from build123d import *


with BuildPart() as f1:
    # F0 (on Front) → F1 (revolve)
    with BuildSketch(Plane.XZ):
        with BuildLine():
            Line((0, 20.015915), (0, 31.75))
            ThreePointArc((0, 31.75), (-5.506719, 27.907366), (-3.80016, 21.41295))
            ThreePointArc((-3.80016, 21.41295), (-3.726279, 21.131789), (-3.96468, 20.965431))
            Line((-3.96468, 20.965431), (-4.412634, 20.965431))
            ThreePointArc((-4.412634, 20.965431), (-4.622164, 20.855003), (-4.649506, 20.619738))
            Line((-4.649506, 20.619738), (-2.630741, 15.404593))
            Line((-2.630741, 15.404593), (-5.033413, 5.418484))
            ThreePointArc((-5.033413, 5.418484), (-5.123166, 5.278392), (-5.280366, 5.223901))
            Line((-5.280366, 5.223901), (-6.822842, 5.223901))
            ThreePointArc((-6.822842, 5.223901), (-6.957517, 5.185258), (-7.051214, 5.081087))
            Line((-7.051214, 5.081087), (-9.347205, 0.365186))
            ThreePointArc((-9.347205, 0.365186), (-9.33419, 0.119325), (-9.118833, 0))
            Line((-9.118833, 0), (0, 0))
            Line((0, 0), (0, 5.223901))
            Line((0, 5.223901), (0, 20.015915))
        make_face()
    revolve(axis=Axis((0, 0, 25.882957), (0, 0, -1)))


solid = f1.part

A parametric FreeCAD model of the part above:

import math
import FreeCAD as App
import Part
import Sketcher
from FreeCAD import Vector
Q = App.Units.Quantity

doc = App.newDocument("Part")
body = doc.addObject("PartDesign::Body", "Body")

# Sketch on XZ plane
sketch1 = body.newObject("Sketcher::SketchObject", "Sketch")
sketch1.AttachmentSupport = (doc.getObject("XZ_Plane"), [""])
sketch1.MapMode = "FlatFace"
sketch1.addGeometry([
    Part.ArcOfCircle(Part.Circle(Vector(0, 25.882958, 0), Vector(0, 0, 1), 5.867042), math.radians(90.000002), math.radians(229.630599)),  # 0
    Part.ArcOfCircle(Part.Circle(Vector(-3.96468, 21.219431, 0), Vector(0, 0, 1), 0.254), math.radians(-89.999997), math.radians(49.630431)),  # 1
    Part.LineSegment(Vector(-3.96468, 20.965431, 0), Vector(-4.412634, 20.965431, 0)),  # 2
    Part.ArcOfCircle(Part.Circle(Vector(-4.412633, 20.71143, 0), Vector(0, 0, 1), 0.254001), math.radians(90.000206), math.radians(201.161198)),  # 3
    Part.LineSegment(Vector(-4.649506, 20.619738, 0), Vector(-2.630741, 15.404593, 0)),  # 4
    Part.LineSegment(Vector(-2.630741, 15.404593, 0), Vector(-5.033413, 5.418484, 0)),  # 5
    Part.ArcOfCircle(Part.Circle(Vector(-5.280368, 5.477904, 0), Vector(0, 0, 1), 0.254003), math.radians(-89.999533), math.radians(-13.528818)),  # 6
    Part.LineSegment(Vector(-5.280366, 5.223901, 0), Vector(-6.822842, 5.223901, 0)),  # 7
    Part.ArcOfCircle(Part.Circle(Vector(-6.822842, 4.9699, 0), Vector(0, 0, 1), 0.254001), math.radians(90.000051), math.radians(154.040118)),  # 8
    Part.LineSegment(Vector(-7.051214, 5.081087, 0), Vector(-9.347205, 0.365186, 0)),  # 9
    Part.ArcOfCircle(Part.Circle(Vector(-9.118833, 0.254, 0), Vector(0, 0, 1), 0.254), math.radians(154.040296), math.radians(269.999969)),  # 10
    Part.LineSegment(Vector(-9.118833, 0, 0), Vector(0, 0, 0)),  # 11
    Part.LineSegment(Vector(0, 0, 0), Vector(0, 31.75, 0)),  # 12
], False)
sketch1.addConstraint([
    Sketcher.Constraint("Coincident", 0, 2, 1, 2),
    Sketcher.Constraint("Coincident", 1, 1, 2, 1),
    Sketcher.Constraint("Coincident", 2, 2, 3, 1),
    Sketcher.Constraint("Coincident", 3, 2, 4, 1),
    Sketcher.Constraint("Coincident", 4, 2, 5, 1),
    Sketcher.Constraint("Coincident", 5, 2, 6, 2),
    Sketcher.Constraint("Coincident", 6, 1, 7, 1),
    Sketcher.Constraint("Coincident", 7, 2, 8, 1),
    Sketcher.Constraint("Coincident", 8, 2, 9, 1),
    Sketcher.Constraint("Coincident", 9, 2, 10, 1),
    Sketcher.Constraint("Coincident", 10, 2, 11, 1),
    Sketcher.Constraint("Coincident", 11, 2, 12, 1),
    Sketcher.Constraint("Coincident", 12, 2, 0, 1),
    Sketcher.Constraint("Horizontal", 2),
    Sketcher.Constraint("Horizontal", 7),
    Sketcher.Constraint("Horizontal", 11),
    Sketcher.Constraint("Vertical", 12),
    Sketcher.Constraint("Coincident", 11, 2, -1, 1),
    Sketcher.Constraint("PointOnObject", 0, 3, -2),
    Sketcher.Constraint("Radius", 1, Q("0.01 in")),
    Sketcher.Constraint("Radius", 3, Q("0.01 in")),
    Sketcher.Constraint("Radius", 6, Q("0.0100001 in")),
    Sketcher.Constraint("Radius", 8, Q("0.01 in")),
    Sketcher.Constraint("Radius", 10, Q("0.01 in")),
    Sketcher.Constraint("DistanceY", 12, 1, 12, 2, Q("1.25 in")),
    Sketcher.Constraint("DistanceX", 9, 2, -1, 1, Q("0.3680002 in")),
    Sketcher.Constraint("Radius", 0, Q("5.867042 mm")),
    Sketcher.Constraint("DistanceY", -1, 1, 8, 3, Q("4.9699 mm")),
    Sketcher.Constraint("DistanceX", 10, 3, 3, 3, Q("4.7062 mm")),
    Sketcher.Constraint("DistanceX", 8, 2, 5, 2, Q("2.017801 mm")),
    Sketcher.Constraint("DistanceY", 9, 2, 8, 2, Q("4.715901 mm")),
    Sketcher.Constraint("Distance", 4, Q("5.59224 mm")),
    Sketcher.Constraint("Distance", 9, Q("5.245121 mm")),
    Sketcher.Constraint("DistanceX", 2, 2, 2, 1, Q("0.447954 mm")),
    Sketcher.Constraint("DistanceX", 7, 2, 7, 1, Q("1.542476 mm")),
    Sketcher.Constraint("DistanceX", 11, 1, 11, 2, Q("9.118833 mm")),
    Sketcher.Constraint("DistanceX", 1, 3, -1, 1, Q("3.96468 mm")),
    Sketcher.Constraint("DistanceX", 6, 3, -1, 1, Q("5.280368 mm")),
    Sketcher.Constraint("DistanceX", 8, 3, -1, 1, Q("6.822842 mm")),
    Sketcher.Constraint("DistanceX", 0, 2, -1, 1, Q("3.80016 mm")),
    Sketcher.Constraint("DistanceX", 1, 1, -1, 1, Q("3.96468 mm")),
    Sketcher.Constraint("DistanceY", -1, 1, 3, 2, Q("20.619738 mm")),
    Sketcher.Constraint("DistanceX", 4, 2, -1, 1, Q("2.630741 mm")),
    Sketcher.Constraint("DistanceX", 7, 2, -1, 1, Q("6.822842 mm")),
])
revolution = body.newObject("PartDesign::Revolution", "Revolution")
revolution.Profile = sketch1
revolution.ReferenceAxis = (sketch1, ["V_Axis"])
revolution.Angle = 360

doc.recompute()
